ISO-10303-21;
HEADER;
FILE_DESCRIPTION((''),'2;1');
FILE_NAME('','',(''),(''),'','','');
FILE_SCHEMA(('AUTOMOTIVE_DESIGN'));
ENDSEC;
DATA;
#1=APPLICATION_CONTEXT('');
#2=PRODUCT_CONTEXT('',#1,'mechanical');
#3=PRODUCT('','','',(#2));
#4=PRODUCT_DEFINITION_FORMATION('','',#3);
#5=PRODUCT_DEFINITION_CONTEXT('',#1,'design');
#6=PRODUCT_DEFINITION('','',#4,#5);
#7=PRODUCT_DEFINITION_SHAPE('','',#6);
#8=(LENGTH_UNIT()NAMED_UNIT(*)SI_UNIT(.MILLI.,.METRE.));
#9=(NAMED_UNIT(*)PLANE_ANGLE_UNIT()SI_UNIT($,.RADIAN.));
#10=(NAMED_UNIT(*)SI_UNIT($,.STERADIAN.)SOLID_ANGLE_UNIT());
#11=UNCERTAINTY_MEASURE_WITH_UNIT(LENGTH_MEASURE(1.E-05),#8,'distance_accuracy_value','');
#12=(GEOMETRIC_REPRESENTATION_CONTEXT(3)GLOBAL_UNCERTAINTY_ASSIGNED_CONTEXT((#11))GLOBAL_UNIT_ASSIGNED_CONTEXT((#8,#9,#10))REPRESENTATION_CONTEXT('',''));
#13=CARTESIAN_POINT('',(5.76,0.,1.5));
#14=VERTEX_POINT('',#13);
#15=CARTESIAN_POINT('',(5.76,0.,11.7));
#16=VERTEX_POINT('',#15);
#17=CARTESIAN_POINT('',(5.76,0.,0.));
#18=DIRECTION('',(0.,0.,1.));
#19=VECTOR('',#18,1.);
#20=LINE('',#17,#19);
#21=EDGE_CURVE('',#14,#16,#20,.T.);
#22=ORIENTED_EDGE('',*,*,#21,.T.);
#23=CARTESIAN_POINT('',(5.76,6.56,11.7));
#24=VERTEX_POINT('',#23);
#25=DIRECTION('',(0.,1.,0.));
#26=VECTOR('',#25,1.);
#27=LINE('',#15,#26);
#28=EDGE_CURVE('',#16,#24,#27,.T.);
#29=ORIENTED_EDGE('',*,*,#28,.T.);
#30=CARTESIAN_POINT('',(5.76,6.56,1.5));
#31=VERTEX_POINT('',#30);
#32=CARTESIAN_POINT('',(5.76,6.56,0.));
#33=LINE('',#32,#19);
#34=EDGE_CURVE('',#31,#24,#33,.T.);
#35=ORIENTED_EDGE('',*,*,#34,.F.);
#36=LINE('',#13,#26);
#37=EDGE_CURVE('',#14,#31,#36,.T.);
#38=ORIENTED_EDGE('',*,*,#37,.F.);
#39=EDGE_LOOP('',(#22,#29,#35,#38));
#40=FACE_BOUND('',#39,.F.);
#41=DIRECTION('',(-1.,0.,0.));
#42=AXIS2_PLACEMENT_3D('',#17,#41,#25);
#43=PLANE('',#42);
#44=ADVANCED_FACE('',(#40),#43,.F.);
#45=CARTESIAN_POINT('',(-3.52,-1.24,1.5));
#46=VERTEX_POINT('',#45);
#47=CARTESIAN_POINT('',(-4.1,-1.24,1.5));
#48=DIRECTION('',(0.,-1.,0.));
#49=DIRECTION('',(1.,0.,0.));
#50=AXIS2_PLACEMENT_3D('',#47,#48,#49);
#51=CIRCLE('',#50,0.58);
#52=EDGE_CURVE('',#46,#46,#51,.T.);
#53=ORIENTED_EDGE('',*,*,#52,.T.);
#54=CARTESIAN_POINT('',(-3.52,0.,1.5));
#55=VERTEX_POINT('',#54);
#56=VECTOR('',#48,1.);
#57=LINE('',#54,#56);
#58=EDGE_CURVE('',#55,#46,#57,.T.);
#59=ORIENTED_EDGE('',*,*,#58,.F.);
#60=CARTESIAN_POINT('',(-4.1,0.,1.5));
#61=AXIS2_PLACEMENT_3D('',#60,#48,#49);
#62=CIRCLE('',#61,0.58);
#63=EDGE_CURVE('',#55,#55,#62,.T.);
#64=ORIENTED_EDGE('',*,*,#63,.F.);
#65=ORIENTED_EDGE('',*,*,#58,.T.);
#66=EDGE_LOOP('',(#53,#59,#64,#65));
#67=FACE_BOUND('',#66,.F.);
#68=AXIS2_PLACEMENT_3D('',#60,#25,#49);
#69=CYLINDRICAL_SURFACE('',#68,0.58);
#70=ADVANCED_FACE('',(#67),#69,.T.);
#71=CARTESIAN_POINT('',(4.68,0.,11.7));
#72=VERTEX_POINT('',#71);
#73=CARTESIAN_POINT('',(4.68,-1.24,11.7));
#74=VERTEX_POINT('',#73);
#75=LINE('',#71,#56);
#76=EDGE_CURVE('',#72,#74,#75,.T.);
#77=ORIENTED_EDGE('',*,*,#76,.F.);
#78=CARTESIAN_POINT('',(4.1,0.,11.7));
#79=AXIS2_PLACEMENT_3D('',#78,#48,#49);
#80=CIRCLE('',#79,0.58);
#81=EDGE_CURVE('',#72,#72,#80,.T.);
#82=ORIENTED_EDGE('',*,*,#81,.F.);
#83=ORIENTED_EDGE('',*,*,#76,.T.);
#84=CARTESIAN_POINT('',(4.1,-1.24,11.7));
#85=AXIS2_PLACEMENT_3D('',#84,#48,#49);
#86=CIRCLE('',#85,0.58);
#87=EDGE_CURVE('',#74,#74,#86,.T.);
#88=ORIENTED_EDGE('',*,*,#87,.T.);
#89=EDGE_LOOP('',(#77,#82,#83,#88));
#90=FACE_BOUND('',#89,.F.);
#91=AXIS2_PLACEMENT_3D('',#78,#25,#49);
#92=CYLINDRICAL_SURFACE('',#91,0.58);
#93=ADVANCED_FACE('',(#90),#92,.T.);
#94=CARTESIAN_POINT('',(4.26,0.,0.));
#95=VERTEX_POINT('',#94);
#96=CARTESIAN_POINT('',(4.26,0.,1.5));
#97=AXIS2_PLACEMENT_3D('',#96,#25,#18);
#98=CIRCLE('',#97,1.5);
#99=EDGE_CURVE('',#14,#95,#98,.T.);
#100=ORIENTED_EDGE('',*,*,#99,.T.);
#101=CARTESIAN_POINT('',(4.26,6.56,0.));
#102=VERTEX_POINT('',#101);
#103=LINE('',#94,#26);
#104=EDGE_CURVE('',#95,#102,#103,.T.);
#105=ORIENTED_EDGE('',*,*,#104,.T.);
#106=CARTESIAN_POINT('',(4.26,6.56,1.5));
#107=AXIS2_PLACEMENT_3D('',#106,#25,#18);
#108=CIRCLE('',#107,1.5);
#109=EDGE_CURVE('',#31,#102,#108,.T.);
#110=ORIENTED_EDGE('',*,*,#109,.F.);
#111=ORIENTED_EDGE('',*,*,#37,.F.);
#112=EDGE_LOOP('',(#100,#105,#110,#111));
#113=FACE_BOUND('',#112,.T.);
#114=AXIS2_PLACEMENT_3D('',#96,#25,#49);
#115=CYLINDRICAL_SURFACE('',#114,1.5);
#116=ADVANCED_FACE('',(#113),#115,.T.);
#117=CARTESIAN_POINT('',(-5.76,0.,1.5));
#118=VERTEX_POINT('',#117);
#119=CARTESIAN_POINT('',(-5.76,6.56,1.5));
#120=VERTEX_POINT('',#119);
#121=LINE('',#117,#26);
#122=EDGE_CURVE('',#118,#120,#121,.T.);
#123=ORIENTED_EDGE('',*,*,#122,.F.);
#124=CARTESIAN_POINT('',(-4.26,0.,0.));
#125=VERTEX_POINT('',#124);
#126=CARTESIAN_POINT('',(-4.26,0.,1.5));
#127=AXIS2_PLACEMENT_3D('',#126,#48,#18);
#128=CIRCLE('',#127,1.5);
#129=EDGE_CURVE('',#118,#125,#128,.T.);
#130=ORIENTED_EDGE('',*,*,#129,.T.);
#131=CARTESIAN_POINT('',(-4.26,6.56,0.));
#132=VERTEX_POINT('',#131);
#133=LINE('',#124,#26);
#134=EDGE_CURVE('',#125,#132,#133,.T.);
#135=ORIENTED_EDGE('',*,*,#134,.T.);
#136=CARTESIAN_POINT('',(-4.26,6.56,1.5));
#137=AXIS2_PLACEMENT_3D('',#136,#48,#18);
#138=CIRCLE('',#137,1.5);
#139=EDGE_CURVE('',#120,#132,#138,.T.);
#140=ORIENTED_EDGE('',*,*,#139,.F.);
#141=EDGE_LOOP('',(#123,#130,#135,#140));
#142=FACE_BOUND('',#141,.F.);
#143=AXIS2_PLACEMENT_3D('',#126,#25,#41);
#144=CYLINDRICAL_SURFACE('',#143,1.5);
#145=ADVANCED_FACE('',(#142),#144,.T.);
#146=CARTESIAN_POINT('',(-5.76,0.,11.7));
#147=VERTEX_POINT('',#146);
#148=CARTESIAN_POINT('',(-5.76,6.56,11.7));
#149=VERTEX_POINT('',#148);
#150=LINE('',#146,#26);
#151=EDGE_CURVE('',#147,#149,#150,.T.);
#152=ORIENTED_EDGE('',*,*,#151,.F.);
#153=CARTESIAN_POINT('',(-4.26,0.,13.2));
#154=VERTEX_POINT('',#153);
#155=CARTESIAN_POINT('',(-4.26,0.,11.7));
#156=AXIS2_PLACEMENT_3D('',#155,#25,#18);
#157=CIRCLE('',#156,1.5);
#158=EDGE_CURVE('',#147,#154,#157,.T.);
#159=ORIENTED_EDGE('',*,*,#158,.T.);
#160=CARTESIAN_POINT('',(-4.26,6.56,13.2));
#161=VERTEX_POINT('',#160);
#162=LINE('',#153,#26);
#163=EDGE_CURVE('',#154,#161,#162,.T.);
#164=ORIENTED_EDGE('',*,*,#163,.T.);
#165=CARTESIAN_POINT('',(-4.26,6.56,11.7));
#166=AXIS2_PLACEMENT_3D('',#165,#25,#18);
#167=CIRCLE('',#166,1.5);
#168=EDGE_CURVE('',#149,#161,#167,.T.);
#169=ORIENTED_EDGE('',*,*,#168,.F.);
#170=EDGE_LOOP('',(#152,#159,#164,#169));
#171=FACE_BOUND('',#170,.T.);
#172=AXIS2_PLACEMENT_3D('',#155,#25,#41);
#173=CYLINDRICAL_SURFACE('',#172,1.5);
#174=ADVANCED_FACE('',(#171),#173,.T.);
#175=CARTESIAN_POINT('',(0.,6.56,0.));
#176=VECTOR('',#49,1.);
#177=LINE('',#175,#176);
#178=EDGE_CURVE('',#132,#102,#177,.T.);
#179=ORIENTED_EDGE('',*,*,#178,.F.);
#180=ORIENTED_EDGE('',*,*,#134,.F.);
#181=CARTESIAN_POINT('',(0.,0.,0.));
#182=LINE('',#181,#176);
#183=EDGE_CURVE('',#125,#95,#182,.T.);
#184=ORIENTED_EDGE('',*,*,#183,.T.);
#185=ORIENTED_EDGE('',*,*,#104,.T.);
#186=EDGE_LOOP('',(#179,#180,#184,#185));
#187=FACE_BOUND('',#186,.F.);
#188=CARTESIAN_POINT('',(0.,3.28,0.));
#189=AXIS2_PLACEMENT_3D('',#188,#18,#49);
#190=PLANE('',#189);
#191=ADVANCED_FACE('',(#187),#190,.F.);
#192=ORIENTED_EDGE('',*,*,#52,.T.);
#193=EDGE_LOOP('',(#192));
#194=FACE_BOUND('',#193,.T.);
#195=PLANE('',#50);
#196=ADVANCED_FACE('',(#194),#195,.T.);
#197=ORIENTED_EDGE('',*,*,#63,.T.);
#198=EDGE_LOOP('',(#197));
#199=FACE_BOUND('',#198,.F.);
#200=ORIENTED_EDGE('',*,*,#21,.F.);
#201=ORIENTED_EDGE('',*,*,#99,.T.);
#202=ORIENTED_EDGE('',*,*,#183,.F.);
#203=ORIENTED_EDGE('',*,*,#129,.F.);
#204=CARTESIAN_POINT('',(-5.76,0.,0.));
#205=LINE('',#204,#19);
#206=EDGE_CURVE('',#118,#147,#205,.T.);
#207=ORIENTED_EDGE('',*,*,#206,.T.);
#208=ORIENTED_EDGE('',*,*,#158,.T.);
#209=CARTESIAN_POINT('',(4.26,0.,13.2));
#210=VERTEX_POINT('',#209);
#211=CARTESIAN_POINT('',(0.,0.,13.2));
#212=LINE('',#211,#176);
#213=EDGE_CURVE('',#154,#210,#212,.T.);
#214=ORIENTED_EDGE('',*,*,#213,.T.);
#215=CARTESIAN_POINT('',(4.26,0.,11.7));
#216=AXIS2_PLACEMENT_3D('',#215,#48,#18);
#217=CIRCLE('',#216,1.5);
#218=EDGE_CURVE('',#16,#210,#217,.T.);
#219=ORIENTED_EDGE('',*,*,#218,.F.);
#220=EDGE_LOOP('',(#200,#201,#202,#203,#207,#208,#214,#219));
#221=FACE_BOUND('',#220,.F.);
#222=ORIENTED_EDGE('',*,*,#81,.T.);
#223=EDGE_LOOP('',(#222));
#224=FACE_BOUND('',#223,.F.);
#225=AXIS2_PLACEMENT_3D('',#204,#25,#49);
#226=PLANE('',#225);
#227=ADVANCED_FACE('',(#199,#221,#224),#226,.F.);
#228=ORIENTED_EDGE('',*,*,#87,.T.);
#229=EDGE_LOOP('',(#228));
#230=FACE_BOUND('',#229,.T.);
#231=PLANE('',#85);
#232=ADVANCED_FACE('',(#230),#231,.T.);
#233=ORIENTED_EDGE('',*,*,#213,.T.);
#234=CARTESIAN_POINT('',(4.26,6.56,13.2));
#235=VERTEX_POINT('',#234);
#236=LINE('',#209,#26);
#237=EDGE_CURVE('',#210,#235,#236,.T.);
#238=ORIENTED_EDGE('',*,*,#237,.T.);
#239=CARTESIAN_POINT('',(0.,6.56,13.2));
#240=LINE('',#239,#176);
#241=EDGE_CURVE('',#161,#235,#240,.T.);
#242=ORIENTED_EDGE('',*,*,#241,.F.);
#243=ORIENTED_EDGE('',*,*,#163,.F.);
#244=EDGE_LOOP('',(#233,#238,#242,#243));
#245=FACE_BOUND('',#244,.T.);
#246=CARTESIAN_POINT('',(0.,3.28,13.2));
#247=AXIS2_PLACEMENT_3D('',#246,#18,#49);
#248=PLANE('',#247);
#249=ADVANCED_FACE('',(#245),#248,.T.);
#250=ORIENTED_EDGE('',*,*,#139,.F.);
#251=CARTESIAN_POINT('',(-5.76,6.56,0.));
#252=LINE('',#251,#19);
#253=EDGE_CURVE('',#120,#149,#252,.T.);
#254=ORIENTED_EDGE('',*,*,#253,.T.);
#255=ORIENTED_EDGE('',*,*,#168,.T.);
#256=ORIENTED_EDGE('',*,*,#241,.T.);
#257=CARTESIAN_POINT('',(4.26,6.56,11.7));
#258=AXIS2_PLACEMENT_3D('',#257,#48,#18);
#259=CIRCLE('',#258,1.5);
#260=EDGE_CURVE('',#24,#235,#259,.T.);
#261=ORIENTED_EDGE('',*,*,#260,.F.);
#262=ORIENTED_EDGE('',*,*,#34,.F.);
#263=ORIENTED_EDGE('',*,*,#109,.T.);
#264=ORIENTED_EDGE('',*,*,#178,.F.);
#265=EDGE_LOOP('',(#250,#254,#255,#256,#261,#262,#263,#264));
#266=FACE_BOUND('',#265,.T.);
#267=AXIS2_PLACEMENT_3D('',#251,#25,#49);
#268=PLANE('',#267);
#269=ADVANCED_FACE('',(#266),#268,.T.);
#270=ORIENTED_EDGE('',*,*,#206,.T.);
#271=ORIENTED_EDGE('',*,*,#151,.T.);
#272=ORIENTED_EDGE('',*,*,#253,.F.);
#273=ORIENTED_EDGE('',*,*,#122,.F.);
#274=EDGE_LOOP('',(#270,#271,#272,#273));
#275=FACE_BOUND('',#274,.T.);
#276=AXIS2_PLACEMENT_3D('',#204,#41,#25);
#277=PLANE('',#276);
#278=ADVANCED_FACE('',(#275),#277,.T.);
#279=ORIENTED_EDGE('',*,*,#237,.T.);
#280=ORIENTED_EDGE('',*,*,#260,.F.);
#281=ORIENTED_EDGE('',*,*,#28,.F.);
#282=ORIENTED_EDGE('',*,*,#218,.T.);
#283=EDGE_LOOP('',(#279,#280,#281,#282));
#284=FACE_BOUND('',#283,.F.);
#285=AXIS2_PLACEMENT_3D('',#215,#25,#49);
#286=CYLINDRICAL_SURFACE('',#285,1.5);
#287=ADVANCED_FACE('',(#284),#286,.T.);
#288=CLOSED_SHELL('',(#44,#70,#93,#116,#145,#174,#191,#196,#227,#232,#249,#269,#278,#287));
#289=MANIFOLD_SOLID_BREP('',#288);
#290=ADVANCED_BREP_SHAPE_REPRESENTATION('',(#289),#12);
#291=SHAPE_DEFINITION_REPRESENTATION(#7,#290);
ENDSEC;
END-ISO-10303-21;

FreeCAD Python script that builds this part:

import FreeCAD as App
import Part
import Sketcher
Q = App.Units.Quantity


def edges_at(feature, points):
    """Names of the edges that pass closest to the given points."""
    edges = feature.Shape.Edges
    near = lambda p: min(range(len(edges)), key=lambda i: edges[i].distToShape(Part.Vertex(*p))[0])
    return sorted({f"Edge{near(p) + 1}" for p in points})


def add_polygon(sketch, points):
    """Adds a closed chain of lines whose ends are joined by coincident constraints."""
    first, n = sketch.GeometryCount, len(points)
    for a, b in zip(points, points[1:] + points[:1]):
        sketch.addGeometry(Part.LineSegment(App.Vector(*a, 0), App.Vector(*b, 0)), False)
    for i in range(n):
        sketch.addConstraint(Sketcher.Constraint("Coincident", first + i, 2, first + (i + 1) % n, 1))

doc = App.newDocument("Part")
params = doc.addObject("Spreadsheet::Sheet", "Params")
for row, (alias, value) in enumerate([
    ("sketch1_diameter", "1.16 mm"),
    ("pad1_length", "1.24 mm"),
    ("sketch2_width", "11.52 mm"),
    ("sketch2_height", "6.56 mm"),
    ("pad2_length", "13.2 mm"),
    ("fillet_radius", "1.5 mm"),
    ("sketch3_diameter", "1.16 mm"),
    ("pad3_length", "1.24 mm"),
], start=1):
    params.set(f"A{row}", alias)
    params.set(f"B{row}", "=" + value)
    params.setAlias(f"B{row}", alias)

body = doc.addObject("PartDesign::Body", "Body")

sketch1 = doc.addObject("Sketcher::SketchObject", "Sketch")
body.addObject(sketch1)
sketch1.AttachmentSupport = (doc.XZ_Plane, [""])
sketch1.MapMode = "FlatFace"
sketch1.addGeometry(Part.Circle(App.Vector(-4.1, 1.5, 0), App.Vector(0, 0, 1), 0.6), False)
sketch1.addConstraint([
    Sketcher.Constraint("Diameter", 0, Q("1.16 mm")),
    Sketcher.Constraint("DistanceX", 0, 3, -1, 1, Q("4.1 mm")),
    Sketcher.Constraint("DistanceY", -1, 1, 0, 3, Q("1.5 mm")),
])
sketch1.setExpression("Constraints[0]", "Params.sketch1_diameter")
pad1 = doc.addObject("PartDesign::Pad", "Pad")
body.addObject(pad1)
pad1.Profile = sketch1
pad1.setExpression("Length", "Params.pad1_length")
body2 = doc.addObject("PartDesign::Body", "Body001")

sketch2 = doc.addObject("Sketcher::SketchObject", "Sketch001")
body2.addObject(sketch2)
sketch2.AttachmentSupport = (doc.getObject("XY_Plane001"), [""])
sketch2.MapMode = "FlatFace"
add_polygon(sketch2, [(-6, 7), (-6, 0), (6, 0), (6, 7)])
sketch2.addConstraint([
    Sketcher.Constraint("Vertical", 0),
    Sketcher.Constraint("Horizontal", 1),
    Sketcher.Constraint("Vertical", 2),
    Sketcher.Constraint("Horizontal", 3),
    Sketcher.Constraint("Symmetric", 0, 2, 1, 2, -1, 1),
    Sketcher.Constraint("DistanceX", 1, 1, 1, 2, Q("11.52 mm")),
    Sketcher.Constraint("DistanceY", 0, 2, 0, 1, Q("6.56 mm")),
])
sketch2.setExpression("Constraints[9]", "Params.sketch2_width")
sketch2.setExpression("Constraints[10]", "Params.sketch2_height")
pad2 = doc.addObject("PartDesign::Pad", "Pad001")
body2.addObject(pad2)
pad2.Profile = sketch2
pad2.setExpression("Length", "Params.pad2_length")
doc.recompute()

fillet = doc.addObject("PartDesign::Fillet", "Fillet")
body2.addObject(fillet)
fillet.Base = (pad2, edges_at(pad2, [
    (-5.76, 3.28, 13.2),
    (-5.76, 3.28, 0),
    (5.76, 3.28, 13.2),
    (5.76, 3.28, 0),
]))
fillet.setExpression("Radius", "Params.fillet_radius")
doc.recompute()

boolean = doc.addObject("PartDesign::Boolean", "Boolean")
body2.addObject(boolean)
boolean.Type = "Fuse"
boolean.addObjects([body])
body3 = doc.addObject("PartDesign::Body", "Body002")

sketch3 = doc.addObject("Sketcher::SketchObject", "Sketch002")
body3.addObject(sketch3)
sketch3.AttachmentSupport = (doc.getObject("XZ_Plane002"), [""])
sketch3.MapMode = "FlatFace"
sketch3.addGeometry(Part.Circle(App.Vector(4.1, 11.7, 0), App.Vector(0, 0, 1), 0.6), False)
sketch3.addConstraint([
    Sketcher.Constraint("Diameter", 0, Q("1.16 mm")),
    Sketcher.Constraint("DistanceX", -1, 1, 0, 3, Q("4.1 mm")),
    Sketcher.Constraint("DistanceY", -1, 1, 0, 3, Q("11.7 mm")),
])
sketch3.setExpression("Constraints[0]", "Params.sketch3_diameter")
pad3 = doc.addObject("PartDesign::Pad", "Pad002")
body3.addObject(pad3)
pad3.Profile = sketch3
pad3.setExpression("Length", "Params.pad3_length")
doc.recompute()

boolean2 = doc.addObject("PartDesign::Boolean", "Boolean001")
body3.addObject(boolean2)
boolean2.Type = "Fuse"
boolean2.addObjects([body2])

doc.recompute()
